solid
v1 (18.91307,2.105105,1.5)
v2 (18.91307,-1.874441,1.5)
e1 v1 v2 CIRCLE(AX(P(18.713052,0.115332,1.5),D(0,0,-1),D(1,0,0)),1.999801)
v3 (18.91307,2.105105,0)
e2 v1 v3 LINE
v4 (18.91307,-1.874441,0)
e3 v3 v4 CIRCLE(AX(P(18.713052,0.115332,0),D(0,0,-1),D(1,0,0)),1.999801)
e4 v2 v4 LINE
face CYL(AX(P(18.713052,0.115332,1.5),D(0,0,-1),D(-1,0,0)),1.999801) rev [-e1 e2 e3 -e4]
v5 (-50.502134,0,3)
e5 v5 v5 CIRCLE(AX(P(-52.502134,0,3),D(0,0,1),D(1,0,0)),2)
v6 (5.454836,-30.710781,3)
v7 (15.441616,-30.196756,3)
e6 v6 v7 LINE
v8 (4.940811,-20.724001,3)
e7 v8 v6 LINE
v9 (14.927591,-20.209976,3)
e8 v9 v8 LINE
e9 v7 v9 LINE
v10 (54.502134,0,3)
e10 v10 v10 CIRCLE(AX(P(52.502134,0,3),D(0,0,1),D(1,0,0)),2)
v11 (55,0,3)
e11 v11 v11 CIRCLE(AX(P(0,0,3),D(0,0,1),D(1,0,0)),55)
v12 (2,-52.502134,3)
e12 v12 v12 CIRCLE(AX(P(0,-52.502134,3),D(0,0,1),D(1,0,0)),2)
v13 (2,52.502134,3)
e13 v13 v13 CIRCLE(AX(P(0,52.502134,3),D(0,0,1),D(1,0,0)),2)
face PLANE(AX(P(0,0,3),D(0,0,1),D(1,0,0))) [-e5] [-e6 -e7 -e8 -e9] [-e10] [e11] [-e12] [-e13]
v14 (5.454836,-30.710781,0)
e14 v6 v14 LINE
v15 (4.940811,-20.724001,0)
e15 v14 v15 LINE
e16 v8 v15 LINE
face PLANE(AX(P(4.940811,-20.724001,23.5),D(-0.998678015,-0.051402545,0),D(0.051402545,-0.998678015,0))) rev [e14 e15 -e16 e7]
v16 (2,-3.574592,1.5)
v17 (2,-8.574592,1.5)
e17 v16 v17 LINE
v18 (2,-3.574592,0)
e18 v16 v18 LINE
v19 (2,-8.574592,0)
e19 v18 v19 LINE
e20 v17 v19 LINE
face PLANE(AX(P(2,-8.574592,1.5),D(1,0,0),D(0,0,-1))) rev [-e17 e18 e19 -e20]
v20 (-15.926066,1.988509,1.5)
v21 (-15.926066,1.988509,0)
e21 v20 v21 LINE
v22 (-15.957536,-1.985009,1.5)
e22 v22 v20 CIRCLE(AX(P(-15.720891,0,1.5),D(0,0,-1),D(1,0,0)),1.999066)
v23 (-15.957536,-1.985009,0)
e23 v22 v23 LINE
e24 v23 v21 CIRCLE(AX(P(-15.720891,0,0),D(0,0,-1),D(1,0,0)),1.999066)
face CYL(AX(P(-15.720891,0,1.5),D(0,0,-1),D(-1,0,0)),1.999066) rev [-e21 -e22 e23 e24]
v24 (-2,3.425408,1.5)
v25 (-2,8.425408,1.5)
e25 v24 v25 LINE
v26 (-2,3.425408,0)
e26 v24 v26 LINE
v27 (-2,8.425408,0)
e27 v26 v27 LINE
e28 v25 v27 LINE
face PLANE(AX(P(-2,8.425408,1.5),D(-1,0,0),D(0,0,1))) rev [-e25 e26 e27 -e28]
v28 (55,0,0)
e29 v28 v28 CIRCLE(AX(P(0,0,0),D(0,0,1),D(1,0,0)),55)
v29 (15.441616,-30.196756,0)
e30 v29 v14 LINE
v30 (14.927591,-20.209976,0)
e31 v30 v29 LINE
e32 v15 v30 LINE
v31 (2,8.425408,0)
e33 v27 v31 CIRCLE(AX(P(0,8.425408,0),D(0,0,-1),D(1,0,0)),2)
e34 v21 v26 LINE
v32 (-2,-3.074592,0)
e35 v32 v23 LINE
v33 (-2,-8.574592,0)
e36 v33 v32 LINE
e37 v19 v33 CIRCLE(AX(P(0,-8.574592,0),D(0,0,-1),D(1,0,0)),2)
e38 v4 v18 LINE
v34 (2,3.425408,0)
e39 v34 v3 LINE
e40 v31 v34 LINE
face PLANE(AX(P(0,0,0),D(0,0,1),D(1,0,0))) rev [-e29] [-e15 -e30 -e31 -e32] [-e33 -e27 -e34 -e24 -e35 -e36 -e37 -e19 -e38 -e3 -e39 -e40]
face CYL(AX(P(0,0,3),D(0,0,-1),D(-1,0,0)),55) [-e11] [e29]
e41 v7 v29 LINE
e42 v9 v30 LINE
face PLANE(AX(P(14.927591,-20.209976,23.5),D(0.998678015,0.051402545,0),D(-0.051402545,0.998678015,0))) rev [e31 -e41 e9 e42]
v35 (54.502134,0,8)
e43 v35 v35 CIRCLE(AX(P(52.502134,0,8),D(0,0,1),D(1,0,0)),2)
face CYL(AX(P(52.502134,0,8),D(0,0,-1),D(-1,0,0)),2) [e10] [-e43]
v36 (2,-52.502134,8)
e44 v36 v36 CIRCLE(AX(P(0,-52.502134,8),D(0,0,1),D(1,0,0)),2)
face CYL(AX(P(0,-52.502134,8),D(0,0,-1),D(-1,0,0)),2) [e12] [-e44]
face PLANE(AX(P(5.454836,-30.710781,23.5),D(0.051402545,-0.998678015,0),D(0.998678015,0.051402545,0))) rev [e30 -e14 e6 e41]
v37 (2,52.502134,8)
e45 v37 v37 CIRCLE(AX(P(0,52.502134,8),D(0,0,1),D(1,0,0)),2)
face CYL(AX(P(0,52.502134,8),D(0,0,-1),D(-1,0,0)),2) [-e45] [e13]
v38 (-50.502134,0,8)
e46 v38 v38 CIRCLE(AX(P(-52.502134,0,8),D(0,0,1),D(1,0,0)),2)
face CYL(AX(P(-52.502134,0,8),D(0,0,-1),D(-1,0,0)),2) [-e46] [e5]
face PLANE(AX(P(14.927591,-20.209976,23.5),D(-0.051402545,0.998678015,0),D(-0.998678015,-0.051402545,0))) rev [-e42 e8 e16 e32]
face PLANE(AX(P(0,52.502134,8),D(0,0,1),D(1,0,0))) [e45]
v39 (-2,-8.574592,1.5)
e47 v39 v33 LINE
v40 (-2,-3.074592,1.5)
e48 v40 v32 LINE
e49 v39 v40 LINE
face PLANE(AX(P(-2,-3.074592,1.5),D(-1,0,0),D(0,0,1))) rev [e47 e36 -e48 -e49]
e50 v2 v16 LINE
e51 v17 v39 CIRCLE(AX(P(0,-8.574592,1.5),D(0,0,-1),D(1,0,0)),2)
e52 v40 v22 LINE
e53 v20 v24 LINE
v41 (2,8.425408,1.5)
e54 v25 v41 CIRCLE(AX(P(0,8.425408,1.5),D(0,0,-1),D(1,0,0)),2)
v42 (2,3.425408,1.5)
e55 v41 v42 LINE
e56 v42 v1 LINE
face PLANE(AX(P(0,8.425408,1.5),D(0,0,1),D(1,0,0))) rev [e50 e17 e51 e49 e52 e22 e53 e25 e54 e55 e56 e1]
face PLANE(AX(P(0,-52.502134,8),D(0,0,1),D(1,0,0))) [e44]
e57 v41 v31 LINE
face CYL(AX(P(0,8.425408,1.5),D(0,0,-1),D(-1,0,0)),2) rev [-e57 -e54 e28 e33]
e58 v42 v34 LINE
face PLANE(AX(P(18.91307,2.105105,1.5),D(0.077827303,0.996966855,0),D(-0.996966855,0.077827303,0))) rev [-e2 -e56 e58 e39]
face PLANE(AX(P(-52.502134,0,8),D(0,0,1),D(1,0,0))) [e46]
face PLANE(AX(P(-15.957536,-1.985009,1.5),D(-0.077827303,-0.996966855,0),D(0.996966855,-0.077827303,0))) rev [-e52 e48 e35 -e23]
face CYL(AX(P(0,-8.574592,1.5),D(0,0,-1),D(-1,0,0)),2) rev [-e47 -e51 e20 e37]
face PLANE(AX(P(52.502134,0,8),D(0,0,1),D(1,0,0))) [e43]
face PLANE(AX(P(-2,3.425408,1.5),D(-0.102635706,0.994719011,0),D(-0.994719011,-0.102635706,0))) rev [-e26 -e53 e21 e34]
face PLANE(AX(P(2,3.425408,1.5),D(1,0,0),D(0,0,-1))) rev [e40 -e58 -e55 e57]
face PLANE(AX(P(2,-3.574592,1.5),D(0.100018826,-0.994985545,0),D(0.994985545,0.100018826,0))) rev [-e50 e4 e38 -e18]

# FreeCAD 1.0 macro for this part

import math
import FreeCAD as App
import Part
import Sketcher

V = App.Vector

doc = App.newDocument("Part")
body = doc.addObject("PartDesign::Body", "Body")

sketch1 = body.newObject("Sketcher::SketchObject", "Sketch")
sketch1.AttachmentSupport = (doc.getObject("XY_Plane"), [""])
sketch1.MapMode = "FlatFace"
sketch1.addGeometry(Part.Circle(V(0, 0, 0), V(0, 0, 1), 55), False)
sketch1.addConstraint(Sketcher.Constraint("Coincident", 0, 3, -1, 1))
sketch1.addConstraint(Sketcher.Constraint("Diameter", 0, 110.0))
pad1 = body.newObject("PartDesign::Pad", "Pad")
pad1.Profile = sketch1
pad1.Length = 3

sketch2 = body.newObject("Sketcher::SketchObject", "Sketch001")
sketch2.AttachmentSupport = (doc.getObject("XY_Plane"), [""])
sketch2.MapMode = "FlatFace"
sketch2.AttachmentOffset = App.Placement(V(0, 0, 3), App.Rotation())
sketch2.addGeometry(Part.Circle(V(0, 52.5, 0), V(0, 0, 1), 2), False)
sketch2.addGeometry(Part.Circle(V(52.5, 0, 0), V(0, 0, 1), 2), False)
sketch2.addGeometry(Part.Circle(V(0, -52.5, 0), V(0, 0, 1), 2), False)
sketch2.addGeometry(Part.Circle(V(-52.5, 0, 0), V(0, 0, 1), 2), False)
sketch2.addConstraint(Sketcher.Constraint("Equal", 0, 1))
sketch2.addConstraint(Sketcher.Constraint("Equal", 1, 2))
sketch2.addConstraint(Sketcher.Constraint("Equal", 2, 3))
sketch2.addConstraint(Sketcher.Constraint("Symmetric", 0, 3, 2, 3, -1, 1))
sketch2.addConstraint(Sketcher.Constraint("Symmetric", 1, 3, 3, 3, -1, 1))
sketch2.addConstraint(Sketcher.Constraint("PointOnObject", 0, 3, -2))
sketch2.addConstraint(Sketcher.Constraint("PointOnObject", 1, 3, -1))
sketch2.addConstraint(Sketcher.Constraint("Diameter", 0, 4.0))
sketch2.addConstraint(Sketcher.Constraint("DistanceY", 2, 3, 0, 3, 105.004268))
sketch2.addConstraint(Sketcher.Constraint("DistanceX", 3, 3, 1, 3, 105.004268))
pad2 = body.newObject("PartDesign::Pad", "Pad001")
pad2.Profile = sketch2
pad2.Length = 5

sketch3 = body.newObject("Sketcher::SketchObject", "Sketch002")
sketch3.AttachmentSupport = (doc.getObject("XY_Plane"), [""])
sketch3.MapMode = "FlatFace"
sketch3.addGeometry(Part.LineSegment(V(2, 8.4, 0), V(2, 3.4, 0)), False)
sketch3.addGeometry(Part.LineSegment(V(2, 3.4, 0), V(18.9, 2.1, 0)), False)
sketch3.addGeometry(Part.ArcOfCircle(Part.Circle(V(18.7, 0.1, 0), V(0, 0, 1), 2), math.radians(-84), math.radians(84)), False)
sketch3.addGeometry(Part.LineSegment(V(18.9, -1.9, 0), V(2, -3.6, 0)), False)
sketch3.addGeometry(Part.LineSegment(V(2, -3.6, 0), V(2, -8.6, 0)), False)
sketch3.addGeometry(Part.ArcOfCircle(Part.Circle(V(0, -8.6, 0), V(0, 0, 1), 2), math.radians(180), math.radians(360)), False)
sketch3.addGeometry(Part.LineSegment(V(-2, -8.6, 0), V(-2, -3.1, 0)), False)
sketch3.addGeometry(Part.LineSegment(V(-2, -3.1, 0), V(-16, -2, 0)), False)
sketch3.addGeometry(Part.ArcOfCircle(Part.Circle(V(-15.7, 0, 0), V(0, 0, 1), 2), math.radians(96), math.radians(263)), False)
sketch3.addGeometry(Part.LineSegment(V(-15.9, 2, 0), V(-2, 3.4, 0)), False)
sketch3.addGeometry(Part.LineSegment(V(-2, 3.4, 0), V(-2, 8.4, 0)), False)
sketch3.addGeometry(Part.ArcOfCircle(Part.Circle(V(0, 8.4, 0), V(0, 0, 1), 2), math.radians(0), math.radians(180)), False)
sketch3.addConstraint(Sketcher.Constraint("Coincident", 0, 2, 1, 1))
sketch3.addConstraint(Sketcher.Constraint("Coincident", 1, 2, 2, 2))
sketch3.addConstraint(Sketcher.Constraint("Tangent", 2, 1, 3, 1))
sketch3.addConstraint(Sketcher.Constraint("Coincident", 3, 2, 4, 1))
sketch3.addConstraint(Sketcher.Constraint("Tangent", 4, 2, 5, 2))
sketch3.addConstraint(Sketcher.Constraint("Tangent", 5, 1, 6, 1))
sketch3.addConstraint(Sketcher.Constraint("Coincident", 6, 2, 7, 1))
sketch3.addConstraint(Sketcher.Constraint("Coincident", 7, 2, 8, 2))
sketch3.addConstraint(Sketcher.Constraint("Tangent", 8, 1, 9, 1))
sketch3.addConstraint(Sketcher.Constraint("Coincident", 9, 2, 10, 1))
sketch3.addConstraint(Sketcher.Constraint("Tangent", 10, 2, 11, 2))
sketch3.addConstraint(Sketcher.Constraint("Tangent", 11, 1, 0, 1))
sketch3.addConstraint(Sketcher.Constraint("Vertical", 0))
sketch3.addConstraint(Sketcher.Constraint("Vertical", 4))
sketch3.addConstraint(Sketcher.Constraint("Vertical", 6))
sketch3.addConstraint(Sketcher.Constraint("Vertical", 10))
sketch3.addConstraint(Sketcher.Constraint("Equal", 5, 11))
sketch3.addConstraint(Sketcher.Constraint("Symmetric", 0, 2, 9, 2, -2))
sketch3.addConstraint(Sketcher.Constraint("PointOnObject", 5, 3, -2))
sketch3.addConstraint(Sketcher.Constraint("PointOnObject", 8, 3, -1))
sketch3.addConstraint(Sketcher.Constraint("Parallel", 1, 7))
sketch3.addConstraint(Sketcher.Constraint("Vertical", 1, 2, 2, 1))
sketch3.addConstraint(Sketcher.Constraint("Equal", 0, 4))
sketch3.addConstraint(Sketcher.Constraint("Equal", 7, 9))
sketch3.addConstraint(Sketcher.Constraint("Radius", 5, 2.0))
sketch3.addConstraint(Sketcher.Constraint("DistanceY", 0, 2, 0, 1, 5.0))
sketch3.addConstraint(Sketcher.Constraint("Distance", 7, 14.0))
sketch3.addConstraint(Sketcher.Constraint("DistanceY", 6, 1, 6, 2, 5.5))
sketch3.addConstraint(Sketcher.Constraint("DistanceY", 5, 3, 11, 3, 17.0))
sketch3.addConstraint(Sketcher.Constraint("Radius", 2, 1.999801))
sketch3.addConstraint(Sketcher.Constraint("Radius", 8, 1.999066))
sketch3.addConstraint(Sketcher.Constraint("DistanceY", 6, 2, 8, 1, 5.0631))
sketch3.addConstraint(Sketcher.Constraint("DistanceX", -1, 1, 1, 2, 18.91307))
pocket1 = body.newObject("PartDesign::Pocket", "Pocket")
pocket1.Profile = sketch3
pocket1.Length = 1.5
pocket1.Reversed = True

sketch4 = body.newObject("Sketcher::SketchObject", "Sketch003")
sketch4.AttachmentSupport = (doc.getObject("XY_Plane"), [""])
sketch4.MapMode = "FlatFace"
sketch4.addGeometry(Part.LineSegment(V(15, -20, 0), V(15, -30, 0)), False)
sketch4.addGeometry(Part.LineSegment(V(15, -30, 0), V(5, -31, 0)), False)
sketch4.addGeometry(Part.LineSegment(V(5, -31, 0), V(5, -21, 0)), False)
sketch4.addGeometry(Part.LineSegment(V(5, -21, 0), V(15, -20, 0)), False)
sketch4.addConstraint(Sketcher.Constraint("Coincident", 0, 2, 1, 1))
sketch4.addConstraint(Sketcher.Constraint("Coincident", 1, 2, 2, 1))
sketch4.addConstraint(Sketcher.Constraint("Coincident", 2, 2, 3, 1))
sketch4.addConstraint(Sketcher.Constraint("Coincident", 3, 2, 0, 1))
sketch4.addConstraint(Sketcher.Constraint("Perpendicular", 0, 1))
sketch4.addConstraint(Sketcher.Constraint("Perpendicular", 1, 2))
sketch4.addConstraint(Sketcher.Constraint("Perpendicular", 2, 3))
sketch4.addConstraint(Sketcher.Constraint("Equal", 0, 1))
sketch4.addConstraint(Sketcher.Constraint("Distance", 0, 10.0))
sketch4.addConstraint(Sketcher.Constraint("DistanceY", 2, 2, -1, 1, 20.724001))
sketch4.addConstraint(Sketcher.Constraint("DistanceY", 1, 2, -1, 1, 30.710781))
sketch4.addConstraint(Sketcher.Constraint("DistanceX", -1, 1, 2, 2, 4.940811))
pocket2 = body.newObject("PartDesign::Pocket", "Pocket001")
pocket2.Profile = sketch4
pocket2.Length = 23.5
pocket2.Reversed = True

doc.recompute()
